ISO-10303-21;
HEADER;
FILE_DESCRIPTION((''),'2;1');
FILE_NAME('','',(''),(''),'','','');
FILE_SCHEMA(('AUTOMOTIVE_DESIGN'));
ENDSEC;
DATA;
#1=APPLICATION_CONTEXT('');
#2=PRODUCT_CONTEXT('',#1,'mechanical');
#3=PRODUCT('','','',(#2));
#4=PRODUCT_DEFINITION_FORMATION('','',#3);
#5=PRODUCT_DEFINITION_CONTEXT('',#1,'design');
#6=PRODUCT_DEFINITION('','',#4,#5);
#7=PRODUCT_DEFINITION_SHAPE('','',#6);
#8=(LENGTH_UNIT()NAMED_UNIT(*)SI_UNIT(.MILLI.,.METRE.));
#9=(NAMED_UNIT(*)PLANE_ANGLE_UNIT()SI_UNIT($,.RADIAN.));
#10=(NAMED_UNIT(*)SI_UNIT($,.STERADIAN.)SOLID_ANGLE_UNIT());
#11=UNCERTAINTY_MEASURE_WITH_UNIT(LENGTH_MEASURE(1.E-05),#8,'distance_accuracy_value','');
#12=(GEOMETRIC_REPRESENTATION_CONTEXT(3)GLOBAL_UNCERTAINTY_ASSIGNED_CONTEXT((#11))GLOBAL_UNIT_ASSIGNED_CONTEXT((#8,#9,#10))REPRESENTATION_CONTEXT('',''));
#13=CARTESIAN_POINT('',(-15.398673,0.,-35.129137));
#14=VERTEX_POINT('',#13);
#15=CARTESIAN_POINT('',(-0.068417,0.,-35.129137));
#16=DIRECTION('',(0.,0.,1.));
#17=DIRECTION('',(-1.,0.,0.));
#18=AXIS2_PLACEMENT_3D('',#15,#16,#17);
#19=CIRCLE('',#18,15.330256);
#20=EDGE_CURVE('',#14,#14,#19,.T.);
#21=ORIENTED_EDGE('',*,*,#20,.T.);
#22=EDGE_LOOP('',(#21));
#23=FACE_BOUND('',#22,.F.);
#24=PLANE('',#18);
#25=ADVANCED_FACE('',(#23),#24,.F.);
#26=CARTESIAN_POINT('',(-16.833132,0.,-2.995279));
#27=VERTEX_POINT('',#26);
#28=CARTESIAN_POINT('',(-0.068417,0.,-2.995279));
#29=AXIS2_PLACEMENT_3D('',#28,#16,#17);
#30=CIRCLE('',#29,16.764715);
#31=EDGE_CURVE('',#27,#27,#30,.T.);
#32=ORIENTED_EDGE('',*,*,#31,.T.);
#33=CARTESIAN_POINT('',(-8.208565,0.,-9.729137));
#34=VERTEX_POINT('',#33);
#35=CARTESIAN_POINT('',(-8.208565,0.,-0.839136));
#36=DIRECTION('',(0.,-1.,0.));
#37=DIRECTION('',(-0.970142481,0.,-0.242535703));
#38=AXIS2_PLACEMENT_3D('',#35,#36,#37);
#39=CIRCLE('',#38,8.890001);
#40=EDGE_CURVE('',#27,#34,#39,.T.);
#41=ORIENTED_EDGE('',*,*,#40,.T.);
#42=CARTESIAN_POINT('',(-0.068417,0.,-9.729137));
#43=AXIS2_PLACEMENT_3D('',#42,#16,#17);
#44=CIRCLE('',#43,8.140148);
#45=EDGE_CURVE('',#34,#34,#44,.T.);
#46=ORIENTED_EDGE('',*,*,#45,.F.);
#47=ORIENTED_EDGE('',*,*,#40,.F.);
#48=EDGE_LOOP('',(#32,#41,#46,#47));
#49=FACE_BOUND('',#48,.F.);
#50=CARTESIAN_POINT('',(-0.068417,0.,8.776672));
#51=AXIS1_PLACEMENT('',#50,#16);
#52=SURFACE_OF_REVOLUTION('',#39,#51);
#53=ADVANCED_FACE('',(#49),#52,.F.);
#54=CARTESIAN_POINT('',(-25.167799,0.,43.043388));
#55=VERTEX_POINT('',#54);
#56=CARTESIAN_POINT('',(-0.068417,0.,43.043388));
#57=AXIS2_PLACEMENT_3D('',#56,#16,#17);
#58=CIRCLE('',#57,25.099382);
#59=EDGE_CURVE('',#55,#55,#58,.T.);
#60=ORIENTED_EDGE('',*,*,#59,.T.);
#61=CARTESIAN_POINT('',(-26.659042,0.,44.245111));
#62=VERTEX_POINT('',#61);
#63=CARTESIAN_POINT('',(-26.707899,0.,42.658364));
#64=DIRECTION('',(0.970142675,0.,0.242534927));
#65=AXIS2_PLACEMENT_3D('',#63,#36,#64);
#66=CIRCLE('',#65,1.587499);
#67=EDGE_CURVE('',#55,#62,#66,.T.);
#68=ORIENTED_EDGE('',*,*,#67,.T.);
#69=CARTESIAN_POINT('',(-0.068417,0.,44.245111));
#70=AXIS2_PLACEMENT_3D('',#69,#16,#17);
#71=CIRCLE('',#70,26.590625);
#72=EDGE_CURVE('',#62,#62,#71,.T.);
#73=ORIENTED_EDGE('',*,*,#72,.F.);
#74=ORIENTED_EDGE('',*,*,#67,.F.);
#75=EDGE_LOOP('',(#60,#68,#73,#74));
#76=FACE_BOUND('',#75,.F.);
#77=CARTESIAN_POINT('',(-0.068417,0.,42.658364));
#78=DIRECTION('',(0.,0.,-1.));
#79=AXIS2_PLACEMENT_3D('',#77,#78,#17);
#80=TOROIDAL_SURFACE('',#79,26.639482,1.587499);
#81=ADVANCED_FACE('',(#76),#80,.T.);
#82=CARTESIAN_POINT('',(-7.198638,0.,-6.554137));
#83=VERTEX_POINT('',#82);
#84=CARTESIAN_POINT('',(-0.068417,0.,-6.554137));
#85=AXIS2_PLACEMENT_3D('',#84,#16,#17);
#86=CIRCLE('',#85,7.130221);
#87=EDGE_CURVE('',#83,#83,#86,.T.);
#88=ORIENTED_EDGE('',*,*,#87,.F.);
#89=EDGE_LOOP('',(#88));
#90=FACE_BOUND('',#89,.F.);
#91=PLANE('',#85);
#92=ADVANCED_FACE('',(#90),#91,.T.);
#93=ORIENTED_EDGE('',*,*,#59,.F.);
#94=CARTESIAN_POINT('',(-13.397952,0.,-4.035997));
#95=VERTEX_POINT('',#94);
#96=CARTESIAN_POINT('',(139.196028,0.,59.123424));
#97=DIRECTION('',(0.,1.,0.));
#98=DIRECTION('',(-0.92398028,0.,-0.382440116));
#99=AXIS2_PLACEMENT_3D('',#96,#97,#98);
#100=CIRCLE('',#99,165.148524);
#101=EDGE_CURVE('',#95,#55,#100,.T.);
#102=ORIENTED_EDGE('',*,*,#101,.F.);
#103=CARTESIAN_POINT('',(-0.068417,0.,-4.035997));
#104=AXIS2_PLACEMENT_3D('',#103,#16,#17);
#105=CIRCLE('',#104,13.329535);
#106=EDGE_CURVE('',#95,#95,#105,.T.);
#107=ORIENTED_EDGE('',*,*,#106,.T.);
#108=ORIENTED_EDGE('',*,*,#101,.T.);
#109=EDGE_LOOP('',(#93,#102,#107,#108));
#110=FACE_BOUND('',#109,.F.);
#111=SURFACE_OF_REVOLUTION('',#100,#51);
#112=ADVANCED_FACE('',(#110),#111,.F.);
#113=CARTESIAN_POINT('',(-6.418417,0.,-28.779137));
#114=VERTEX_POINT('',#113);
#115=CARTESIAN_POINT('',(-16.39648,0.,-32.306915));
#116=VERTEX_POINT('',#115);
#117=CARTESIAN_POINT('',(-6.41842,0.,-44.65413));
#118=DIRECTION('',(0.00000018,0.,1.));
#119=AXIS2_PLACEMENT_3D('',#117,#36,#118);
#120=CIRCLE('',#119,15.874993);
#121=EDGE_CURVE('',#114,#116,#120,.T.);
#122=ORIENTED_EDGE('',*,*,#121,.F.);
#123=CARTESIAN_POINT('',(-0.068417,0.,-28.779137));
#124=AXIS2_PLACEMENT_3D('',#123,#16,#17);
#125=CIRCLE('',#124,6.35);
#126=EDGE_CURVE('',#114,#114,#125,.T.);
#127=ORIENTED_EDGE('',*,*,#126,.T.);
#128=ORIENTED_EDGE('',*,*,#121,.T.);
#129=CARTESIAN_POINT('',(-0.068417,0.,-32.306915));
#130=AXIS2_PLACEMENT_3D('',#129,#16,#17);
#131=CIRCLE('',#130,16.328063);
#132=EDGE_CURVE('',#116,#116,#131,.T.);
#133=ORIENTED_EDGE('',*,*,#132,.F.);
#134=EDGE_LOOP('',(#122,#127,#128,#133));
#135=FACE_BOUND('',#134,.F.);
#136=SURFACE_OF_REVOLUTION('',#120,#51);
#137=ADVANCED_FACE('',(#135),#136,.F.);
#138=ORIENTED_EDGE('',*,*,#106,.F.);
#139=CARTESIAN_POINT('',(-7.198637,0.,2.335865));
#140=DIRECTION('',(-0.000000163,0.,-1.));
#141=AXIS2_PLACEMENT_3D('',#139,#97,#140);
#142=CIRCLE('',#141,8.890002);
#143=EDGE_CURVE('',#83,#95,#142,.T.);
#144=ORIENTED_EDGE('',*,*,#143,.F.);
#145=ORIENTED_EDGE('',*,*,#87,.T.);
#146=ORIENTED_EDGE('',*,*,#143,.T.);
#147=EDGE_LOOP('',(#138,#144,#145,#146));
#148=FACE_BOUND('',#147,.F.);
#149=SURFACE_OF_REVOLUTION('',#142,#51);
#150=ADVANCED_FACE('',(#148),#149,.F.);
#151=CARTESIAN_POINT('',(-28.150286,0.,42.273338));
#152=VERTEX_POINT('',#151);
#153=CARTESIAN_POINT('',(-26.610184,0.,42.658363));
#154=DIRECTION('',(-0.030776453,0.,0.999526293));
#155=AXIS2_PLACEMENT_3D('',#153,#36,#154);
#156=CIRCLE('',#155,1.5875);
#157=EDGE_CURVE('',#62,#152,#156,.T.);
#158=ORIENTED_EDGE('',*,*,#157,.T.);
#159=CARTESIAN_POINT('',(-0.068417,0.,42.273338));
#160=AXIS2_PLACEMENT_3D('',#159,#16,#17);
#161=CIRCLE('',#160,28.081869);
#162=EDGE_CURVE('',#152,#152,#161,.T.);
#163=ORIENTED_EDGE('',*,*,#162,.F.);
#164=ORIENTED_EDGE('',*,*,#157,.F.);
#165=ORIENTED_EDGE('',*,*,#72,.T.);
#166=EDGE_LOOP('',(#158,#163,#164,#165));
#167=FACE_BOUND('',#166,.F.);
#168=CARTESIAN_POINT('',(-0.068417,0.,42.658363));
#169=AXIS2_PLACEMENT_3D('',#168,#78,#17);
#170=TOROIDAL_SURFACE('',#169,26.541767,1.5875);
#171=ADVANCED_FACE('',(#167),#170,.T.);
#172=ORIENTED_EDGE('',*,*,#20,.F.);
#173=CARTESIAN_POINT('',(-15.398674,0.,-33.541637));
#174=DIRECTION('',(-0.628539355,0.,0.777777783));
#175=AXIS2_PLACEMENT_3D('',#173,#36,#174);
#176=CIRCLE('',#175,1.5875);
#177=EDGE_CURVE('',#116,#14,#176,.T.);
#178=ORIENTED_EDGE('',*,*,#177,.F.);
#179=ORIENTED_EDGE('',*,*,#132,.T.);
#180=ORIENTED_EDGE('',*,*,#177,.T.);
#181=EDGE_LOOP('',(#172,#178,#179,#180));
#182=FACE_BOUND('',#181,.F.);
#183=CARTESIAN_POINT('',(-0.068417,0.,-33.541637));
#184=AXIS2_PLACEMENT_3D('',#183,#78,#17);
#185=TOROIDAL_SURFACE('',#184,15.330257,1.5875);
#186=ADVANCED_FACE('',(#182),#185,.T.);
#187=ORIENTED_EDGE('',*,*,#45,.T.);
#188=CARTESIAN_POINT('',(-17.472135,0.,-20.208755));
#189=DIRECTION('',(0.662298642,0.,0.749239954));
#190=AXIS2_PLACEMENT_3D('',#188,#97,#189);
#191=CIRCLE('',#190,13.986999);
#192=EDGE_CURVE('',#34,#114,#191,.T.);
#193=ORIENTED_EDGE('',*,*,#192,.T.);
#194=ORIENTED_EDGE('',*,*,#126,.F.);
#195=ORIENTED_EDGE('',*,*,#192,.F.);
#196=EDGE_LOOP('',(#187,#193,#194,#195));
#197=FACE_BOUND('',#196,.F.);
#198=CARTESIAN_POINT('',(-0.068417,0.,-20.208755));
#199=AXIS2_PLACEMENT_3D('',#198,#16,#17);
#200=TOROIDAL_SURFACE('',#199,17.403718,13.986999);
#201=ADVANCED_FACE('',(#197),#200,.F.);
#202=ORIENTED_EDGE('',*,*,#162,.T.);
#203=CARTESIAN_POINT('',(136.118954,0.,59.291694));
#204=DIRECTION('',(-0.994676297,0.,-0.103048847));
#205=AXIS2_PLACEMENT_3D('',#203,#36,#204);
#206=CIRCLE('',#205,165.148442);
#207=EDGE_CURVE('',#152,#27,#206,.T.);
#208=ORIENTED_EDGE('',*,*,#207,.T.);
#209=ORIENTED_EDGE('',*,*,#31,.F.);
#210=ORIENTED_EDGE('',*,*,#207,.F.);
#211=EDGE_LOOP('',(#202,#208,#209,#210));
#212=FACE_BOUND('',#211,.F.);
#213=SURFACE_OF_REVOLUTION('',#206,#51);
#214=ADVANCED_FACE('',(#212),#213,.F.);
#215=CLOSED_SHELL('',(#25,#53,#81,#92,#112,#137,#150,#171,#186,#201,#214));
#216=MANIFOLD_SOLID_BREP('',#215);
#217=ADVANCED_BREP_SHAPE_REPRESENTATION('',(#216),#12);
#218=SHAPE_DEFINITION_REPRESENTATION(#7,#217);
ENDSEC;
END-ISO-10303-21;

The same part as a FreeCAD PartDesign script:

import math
import FreeCAD as App
import Part
import Sketcher
Q = App.Units.Quantity

doc = App.newDocument("Part")
body = doc.addObject("PartDesign::Body", "Body")

# Sketch on XZ plane
sketch1 = doc.addObject("Sketcher::SketchObject", "Sketch")
body.addObject(sketch1)
sketch1.AttachmentSupport = (doc.XZ_Plane, [""])
sketch1.MapMode = "FlatFace"
sketch1.addGeometry(Part.ArcOfCircle(Part.Circle(App.Vector(-26.707899, 42.658364, 0), App.Vector(0, 0, 1), 1.587499), math.radians(14.036202), math.radians(88.236365)), False)
sketch1.addGeometry(Part.ArcOfCircle(Part.Circle(App.Vector(-26.610184, 42.658363, 0), App.Vector(0, 0, 1), 1.5875), math.radians(91.763639), math.radians(194.03622)), False)
sketch1.addGeometry(Part.ArcOfCircle(Part.Circle(App.Vector(136.118954, 59.291694, 0), App.Vector(0, 0, 1), 165.148442), math.radians(-174.085236), math.radians(-157.842278)), False)
sketch1.addGeometry(Part.ArcOfCircle(Part.Circle(App.Vector(-8.208565, -0.839136, 0), App.Vector(0, 0, 1), 8.890001), math.radians(-165.963752), math.radians(-90.000001)), False)
sketch1.addGeometry(Part.ArcOfCircle(Part.Circle(App.Vector(-17.472135, -20.208755, 0), App.Vector(0, 0, 1), 13.986999), math.radians(-37.787827), math.radians(48.524583)), False)
sketch1.addGeometry(Part.ArcOfCircle(Part.Circle(App.Vector(-6.41842, -44.65413, 0), App.Vector(0, 0, 1), 15.874993), math.radians(89.99999), math.radians(128.942452)), False)
sketch1.addGeometry(Part.ArcOfCircle(Part.Circle(App.Vector(-15.398674, -33.541637, 0), App.Vector(0, 0, 1), 1.5875), math.radians(128.942441), math.radians(270.000031)), False)
sketch1.addGeometry(Part.LineSegment(App.Vector(-15.398673, -35.129137, 0), App.Vector(-0.068417, -35.129137, 0)), False)
sketch1.addGeometry(Part.LineSegment(App.Vector(-0.068417, -35.129137, 0), App.Vector(-0.068417, -6.554137, 0)), False)
sketch1.addGeometry(Part.LineSegment(App.Vector(-0.068417, -6.554137, 0), App.Vector(-7.198638, -6.554137, 0)), False)
sketch1.addGeometry(Part.ArcOfCircle(Part.Circle(App.Vector(-7.198637, 2.335865, 0), App.Vector(0, 0, 1), 8.890002), math.radians(-134.213631), math.radians(-90.000009)), False)
sketch1.addGeometry(Part.ArcOfCircle(Part.Circle(App.Vector(139.196028, 59.123424, 0), App.Vector(0, 0, 1), 165.148524), math.radians(-174.412423), math.radians(-157.515089)), False)
sketch1.addGeometry(Part.LineSegment(App.Vector(-0.068417, -44.65413, 0), App.Vector(-0.068417, 59.291694, 0)), True)  # axis
sketch1.addConstraint(Sketcher.Constraint("Coincident", 0, 2, 1, 1))
sketch1.addConstraint(Sketcher.Constraint("Coincident", 1, 2, 2, 1))
sketch1.addConstraint(Sketcher.Constraint("Coincident", 2, 2, 3, 1))
sketch1.addConstraint(Sketcher.Constraint("Coincident", 3, 2, 4, 2))
sketch1.addConstraint(Sketcher.Constraint("Coincident", 4, 1, 5, 1))
sketch1.addConstraint(Sketcher.Constraint("Tangent", 5, 2, 6, 1))
sketch1.addConstraint(Sketcher.Constraint("Tangent", 6, 2, 7, 1))
sketch1.addConstraint(Sketcher.Constraint("Coincident", 7, 2, 8, 1))
sketch1.addConstraint(Sketcher.Constraint("Coincident", 8, 2, 9, 1))
sketch1.addConstraint(Sketcher.Constraint("Tangent", 9, 2, 10, 2))
sketch1.addConstraint(Sketcher.Constraint("Coincident", 10, 1, 11, 2))
sketch1.addConstraint(Sketcher.Constraint("Coincident", 11, 1, 0, 1))
sketch1.addConstraint(Sketcher.Constraint("Horizontal", 7))
sketch1.addConstraint(Sketcher.Constraint("Vertical", 8))
sketch1.addConstraint(Sketcher.Constraint("Horizontal", 9))
sketch1.addConstraint(Sketcher.Constraint("Vertical", 12))
sketch1.addConstraint(Sketcher.Constraint("Equal", 0, 1))
sketch1.addConstraint(Sketcher.Constraint("Equal", 1, 6))
sketch1.addConstraint(Sketcher.Constraint("Equal", 3, 10))
sketch1.addConstraint(Sketcher.Constraint("Horizontal", 0, 3, 1, 3))
sketch1.addConstraint(Sketcher.Constraint("Horizontal", 5, 3, 12, 1))
sketch1.addConstraint(Sketcher.Constraint("Horizontal", 2, 3, 12, 2))
sketch1.addConstraint(Sketcher.Constraint("Vertical", 8, 2, 12, 1))
sketch1.addConstraint(Sketcher.Constraint("Radius", 3, Q("0.35 in")))
sketch1.addConstraint(Sketcher.Constraint("Radius", 0, Q("0.0625 in")))
sketch1.addConstraint(Sketcher.Constraint("DistanceY", 6, 3, 1, 3, Q("3 in")))
sketch1.addConstraint(Sketcher.Constraint("DistanceY", 8, 1, 8, 2, Q("1.125 in")))
sketch1.addConstraint(Sketcher.Constraint("Radius", 4, 13.986999))
sketch1.addConstraint(Sketcher.Constraint("DistanceY", 4, 1, 3, 2, Q("0.75 in")))
sketch1.addConstraint(Sketcher.Constraint("DistanceY", 6, 2, 4, 1, Q("0.25 in")))
sketch1.addConstraint(Sketcher.Constraint("DistanceX", 4, 1, 7, 2, Q("0.25 in")))
sketch1.addConstraint(Sketcher.Constraint("DistanceX", 5, 3, 7, 2, Q("0.2500001 in")))
sketch1.addConstraint(Sketcher.Constraint("Radius", 2, 165.148442))
sketch1.addConstraint(Sketcher.Constraint("DistanceX", 0, 2, 12, 2, Q("1.046875 in")))
sketch1.addConstraint(Sketcher.Constraint("Radius", 5, 15.874993))
sketch1.addConstraint(Sketcher.Constraint("Radius", 11, 165.148524))
sketch1.addConstraint(Sketcher.Constraint("DistanceX", 9, 2, 9, 1, 7.130221))
sketch1.addConstraint(Sketcher.Constraint("DistanceX", 0, 3, -1, 1, 26.707899))
sketch1.addConstraint(Sketcher.Constraint("DistanceX", 11, 1, -1, 1, 25.167799))
sketch1.addConstraint(Sketcher.Constraint("DistanceX", 4, 3, 10, 3, 10.273499))
sketch1.addConstraint(Sketcher.Constraint("DistanceX", 1, 2, 1, 3, 1.540102))
sketch1.addConstraint(Sketcher.Constraint("DistanceY", 12, 1, 12, 2, 103.945824))
sketch1.addConstraint(Sketcher.Constraint("DistanceX", 5, 3, -1, 1, 6.41842))
sketch1.addConstraint(Sketcher.Constraint("DistanceY", 5, 3, -1, 1, 44.65413))
sketch1.addConstraint(Sketcher.Constraint("DistanceX", 2, 2, -1, 1, 16.833132))
sketch1.addConstraint(Sketcher.Constraint("DistanceY", 11, 3, 2, 3, 0.168271))
revolution = doc.addObject("PartDesign::Revolution", "Revolution")
body.addObject(revolution)
revolution.Profile = sketch1
revolution.ReferenceAxis = (sketch1, ["Axis0"])
revolution.Angle = 360

doc.recompute()
